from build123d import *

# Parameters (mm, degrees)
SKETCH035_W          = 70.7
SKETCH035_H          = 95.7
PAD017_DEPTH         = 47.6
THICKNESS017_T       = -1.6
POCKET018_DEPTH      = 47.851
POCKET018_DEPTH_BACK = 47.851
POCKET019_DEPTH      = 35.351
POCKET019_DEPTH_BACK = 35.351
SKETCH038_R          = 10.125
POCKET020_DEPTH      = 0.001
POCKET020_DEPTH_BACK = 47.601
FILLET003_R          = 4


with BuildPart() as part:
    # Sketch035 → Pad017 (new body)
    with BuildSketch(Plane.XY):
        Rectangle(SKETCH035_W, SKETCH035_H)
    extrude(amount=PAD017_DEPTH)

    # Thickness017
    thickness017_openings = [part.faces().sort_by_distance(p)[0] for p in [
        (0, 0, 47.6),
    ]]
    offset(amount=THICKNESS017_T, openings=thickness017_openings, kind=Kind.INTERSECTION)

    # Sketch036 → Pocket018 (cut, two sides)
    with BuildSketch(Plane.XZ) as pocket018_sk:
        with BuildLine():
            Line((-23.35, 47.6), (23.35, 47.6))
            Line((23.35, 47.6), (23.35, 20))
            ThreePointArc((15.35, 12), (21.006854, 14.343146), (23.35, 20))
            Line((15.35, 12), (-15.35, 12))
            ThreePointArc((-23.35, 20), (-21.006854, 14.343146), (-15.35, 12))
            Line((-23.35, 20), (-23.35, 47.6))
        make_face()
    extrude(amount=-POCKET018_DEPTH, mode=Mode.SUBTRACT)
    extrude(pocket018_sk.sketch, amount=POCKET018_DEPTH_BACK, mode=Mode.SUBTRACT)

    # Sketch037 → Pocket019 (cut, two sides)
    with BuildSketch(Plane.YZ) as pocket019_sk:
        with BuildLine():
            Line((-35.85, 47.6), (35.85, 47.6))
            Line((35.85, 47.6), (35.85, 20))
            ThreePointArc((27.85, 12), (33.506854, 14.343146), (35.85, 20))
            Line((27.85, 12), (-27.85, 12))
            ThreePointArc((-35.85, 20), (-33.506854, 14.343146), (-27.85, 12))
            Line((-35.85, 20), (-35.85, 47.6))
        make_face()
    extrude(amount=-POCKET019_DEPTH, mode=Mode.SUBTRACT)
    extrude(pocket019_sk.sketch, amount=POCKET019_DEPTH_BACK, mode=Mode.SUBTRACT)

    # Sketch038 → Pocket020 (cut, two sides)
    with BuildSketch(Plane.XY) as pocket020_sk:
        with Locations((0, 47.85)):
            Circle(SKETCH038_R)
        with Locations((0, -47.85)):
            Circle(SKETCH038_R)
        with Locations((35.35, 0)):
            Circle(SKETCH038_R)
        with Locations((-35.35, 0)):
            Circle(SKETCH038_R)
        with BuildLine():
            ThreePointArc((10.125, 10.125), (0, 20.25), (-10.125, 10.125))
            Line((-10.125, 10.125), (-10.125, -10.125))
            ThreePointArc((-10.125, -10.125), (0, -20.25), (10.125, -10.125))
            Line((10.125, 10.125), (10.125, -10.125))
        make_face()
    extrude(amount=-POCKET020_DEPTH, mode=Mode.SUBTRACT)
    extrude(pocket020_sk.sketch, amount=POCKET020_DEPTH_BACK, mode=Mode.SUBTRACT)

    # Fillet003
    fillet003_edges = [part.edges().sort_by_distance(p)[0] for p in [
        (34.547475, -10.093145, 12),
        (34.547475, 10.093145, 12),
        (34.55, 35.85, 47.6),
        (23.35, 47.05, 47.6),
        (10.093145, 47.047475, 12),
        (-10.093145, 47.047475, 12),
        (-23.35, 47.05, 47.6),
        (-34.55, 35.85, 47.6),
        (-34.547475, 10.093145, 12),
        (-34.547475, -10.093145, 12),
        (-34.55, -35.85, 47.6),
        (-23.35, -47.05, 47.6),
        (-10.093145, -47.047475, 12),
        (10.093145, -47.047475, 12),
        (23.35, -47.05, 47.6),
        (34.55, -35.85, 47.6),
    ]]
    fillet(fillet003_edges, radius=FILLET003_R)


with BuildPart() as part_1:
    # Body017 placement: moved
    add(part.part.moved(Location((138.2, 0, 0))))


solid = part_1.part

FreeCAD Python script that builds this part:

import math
import FreeCAD as App
import Part
import Sketcher
Q = App.Units.Quantity


def edges_at(feature, points):
    """Names of the edges that pass closest to the given points."""
    edges = feature.Shape.Edges
    near = lambda p: min(range(len(edges)), key=lambda i: edges[i].distToShape(Part.Vertex(*p))[0])
    return sorted({f"Edge{near(p) + 1}" for p in points})


def faces_at(feature, points):
    """Names of the faces that lie closest to the given points."""
    faces = feature.Shape.Faces
    near = lambda p: min(range(len(faces)), key=lambda i: faces[i].distToShape(Part.Vertex(*p))[0])
    return sorted({f"Face{near(p) + 1}" for p in points})


def add_polygon(sketch, points):
    """Adds a closed chain of lines whose ends are joined by coincident constraints."""
    first, n = sketch.GeometryCount, len(points)
    for a, b in zip(points, points[1:] + points[:1]):
        sketch.addGeometry(Part.LineSegment(App.Vector(*a, 0), App.Vector(*b, 0)), False)
    for i in range(n):
        sketch.addConstraint(Sketcher.Constraint("Coincident", first + i, 2, first + (i + 1) % n, 1))

doc = App.newDocument("Part")
body = doc.addObject("PartDesign::Body", "Body")

# Sketch on XY plane
sketch1 = body.newObject("Sketcher::SketchObject", "Sketch")
sketch1.AttachmentSupport = (doc.getObject("XY_Plane"), [""])
sketch1.MapMode = "FlatFace"
add_polygon(sketch1, [(-35, 48), (-35, -48), (35, -48), (35, 48)])  # lines 0-3
sketch1.addConstraint([
    Sketcher.Constraint("Vertical", 0),
    Sketcher.Constraint("Horizontal", 1),
    Sketcher.Constraint("Vertical", 2),
    Sketcher.Constraint("Horizontal", 3),
    Sketcher.Constraint("Symmetric", 0, 2, 2, 2, -1, 1),
    Sketcher.Constraint("DistanceX", 1, 1, 1, 2, Q("70.7 mm")),
    Sketcher.Constraint("DistanceY", 0, 2, 0, 1, Q("95.7 mm")),
])
pad1 = body.newObject("PartDesign::Pad", "Pad")
pad1.Profile = sketch1
pad1.Length = 47.6
doc.recompute()

thickness = body.newObject("PartDesign::Thickness", "Thickness")
thickness.Base = (pad1, faces_at(pad1, [(0, 0, 47.6)]))
thickness.Value = 1.6
thickness.Reversed = True
thickness.Join = "Intersection"

# Sketch on XZ plane
sketch2 = body.newObject("Sketcher::SketchObject", "Sketch001")
sketch2.AttachmentSupport = (doc.getObject("XZ_Plane"), [""])
sketch2.MapMode = "FlatFace"
sketch2.addGeometry([
    Part.LineSegment(App.Vector(23, 48, 0), App.Vector(-23, 48, 0)),  # 0
    Part.LineSegment(App.Vector(-23, 48, 0), App.Vector(-23, 20, 0)),  # 1
    Part.ArcOfCircle(Part.Circle(App.Vector(-15, 20, 0), App.Vector(0, 0, 1), 8), math.radians(-180), math.radians(-90)),  # 2
    Part.LineSegment(App.Vector(-15, 12, 0), App.Vector(15, 12, 0)),  # 3
    Part.ArcOfCircle(Part.Circle(App.Vector(15, 20, 0), App.Vector(0, 0, 1), 8), math.radians(-90), math.radians(0)),  # 4
    Part.LineSegment(App.Vector(23, 20, 0), App.Vector(23, 48, 0)),  # 5
], False)
sketch2.addConstraint([
    Sketcher.Constraint("Coincident", 0, 2, 1, 1),
    Sketcher.Constraint("Tangent", 1, 2, 2, 1),
    Sketcher.Constraint("Tangent", 2, 2, 3, 1),
    Sketcher.Constraint("Tangent", 3, 2, 4, 1),
    Sketcher.Constraint("Tangent", 4, 2, 5, 1),
    Sketcher.Constraint("Coincident", 5, 2, 0, 1),
    Sketcher.Constraint("Horizontal", 0),
    Sketcher.Constraint("Vertical", 1),
    Sketcher.Constraint("Horizontal", 3),
    Sketcher.Constraint("Vertical", 5),
    Sketcher.Constraint("Equal", 2, 4),
    Sketcher.Constraint("Radius", 2, Q("8.000001 mm")),
    Sketcher.Constraint("DistanceX", 0, 2, 0, 1, Q("46.7 mm")),
    Sketcher.Constraint("DistanceY", 1, 2, 1, 1, Q("27.6 mm")),
    Sketcher.Constraint("DistanceY", -1, 1, 2, 3, Q("20.000001 mm")),
    Sketcher.Constraint("DistanceX", 2, 3, -1, 1, Q("15.349999 mm")),
])
pocket1 = body.newObject("PartDesign::Pocket", "Pocket")
pocket1.Profile = sketch2
pocket1.Type = "ThroughAll"
pocket1.Midplane = True

# Sketch on YZ plane
sketch3 = body.newObject("Sketcher::SketchObject", "Sketch002")
sketch3.AttachmentSupport = (doc.getObject("YZ_Plane"), [""])
sketch3.MapMode = "FlatFace"
sketch3.addGeometry([
    Part.LineSegment(App.Vector(36, 48, 0), App.Vector(-36, 48, 0)),  # 0
    Part.LineSegment(App.Vector(-36, 48, 0), App.Vector(-36, 20, 0)),  # 1
    Part.ArcOfCircle(Part.Circle(App.Vector(-28, 20, 0), App.Vector(0, 0, 1), 8), math.radians(-180), math.radians(-90)),  # 2
    Part.LineSegment(App.Vector(-28, 12, 0), App.Vector(28, 12, 0)),  # 3
    Part.ArcOfCircle(Part.Circle(App.Vector(28, 20, 0), App.Vector(0, 0, 1), 8), math.radians(-90), math.radians(0)),  # 4
    Part.LineSegment(App.Vector(36, 20, 0), App.Vector(36, 48, 0)),  # 5
], False)
sketch3.addConstraint([
    Sketcher.Constraint("Coincident", 0, 2, 1, 1),
    Sketcher.Constraint("Tangent", 1, 2, 2, 1),
    Sketcher.Constraint("Tangent", 2, 2, 3, 1),
    Sketcher.Constraint("Tangent", 3, 2, 4, 1),
    Sketcher.Constraint("Tangent", 4, 2, 5, 1),
    Sketcher.Constraint("Coincident", 5, 2, 0, 1),
    Sketcher.Constraint("Horizontal", 0),
    Sketcher.Constraint("Vertical", 1),
    Sketcher.Constraint("Horizontal", 3),
    Sketcher.Constraint("Vertical", 5),
    Sketcher.Constraint("Equal", 2, 4),
    Sketcher.Constraint("Radius", 2, Q("8.000001 mm")),
    Sketcher.Constraint("DistanceX", 0, 2, 0, 1, Q("71.7 mm")),
    Sketcher.Constraint("DistanceY", 1, 2, 1, 1, Q("27.6 mm")),
    Sketcher.Constraint("DistanceY", -1, 1, 2, 3, Q("20.000001 mm")),
    Sketcher.Constraint("DistanceX", 2, 3, -1, 1, Q("27.849999 mm")),
])
pocket2 = body.newObject("PartDesign::Pocket", "Pocket001")
pocket2.Profile = sketch3
pocket2.Type = "ThroughAll"
pocket2.Midplane = True

# Sketch on XY plane
sketch4 = body.newObject("Sketcher::SketchObject", "Sketch003")
sketch4.AttachmentSupport = (doc.getObject("XY_Plane"), [""])
sketch4.MapMode = "FlatFace"
sketch4.addGeometry([
    Part.Circle(App.Vector(0, 48, 0), App.Vector(0, 0, 1), 10),  # 0
    Part.Circle(App.Vector(0, -48, 0), App.Vector(0, 0, 1), 10),  # 1
    Part.Circle(App.Vector(35, 0, 0), App.Vector(0, 0, 1), 10),  # 2
    Part.Circle(App.Vector(-35, 0, 0), App.Vector(0, 0, 1), 10),  # 3
    Part.ArcOfCircle(Part.Circle(App.Vector(0, 10, 0), App.Vector(0, 0, 1), 10), math.radians(0), math.radians(180)),  # 4
    Part.LineSegment(App.Vector(-10, 10, 0), App.Vector(-10, -10, 0)),  # 5
    Part.ArcOfCircle(Part.Circle(App.Vector(0, -10, 0), App.Vector(0, 0, 1), 10), math.radians(180), math.radians(360)),  # 6
    Part.LineSegment(App.Vector(10, -10, 0), App.Vector(10, 10, 0)),  # 7
], False)
sketch4.addConstraint([
    Sketcher.Constraint("Tangent", 4, 2, 5, 1),
    Sketcher.Constraint("Tangent", 5, 2, 6, 1),
    Sketcher.Constraint("Tangent", 6, 2, 7, 1),
    Sketcher.Constraint("Tangent", 7, 2, 4, 1),
    Sketcher.Constraint("Vertical", 5),
    Sketcher.Constraint("Vertical", 7),
    Sketcher.Constraint("Equal", 0, 1),
    Sketcher.Constraint("Equal", 1, 2),
    Sketcher.Constraint("Equal", 2, 3),
    Sketcher.Constraint("Equal", 3, 4),
    Sketcher.Constraint("Symmetric", 0, 3, 1, 3, -1, 1),
    Sketcher.Constraint("Symmetric", 2, 3, 3, 3, -1, 1),
    Sketcher.Constraint("Symmetric", 4, 3, 6, 3, -1, 1),
    Sketcher.Constraint("PointOnObject", 0, 3, -2),
    Sketcher.Constraint("PointOnObject", 2, 3, -1),
    Sketcher.Constraint("Diameter", 0, Q("20.25 mm")),
    Sketcher.Constraint("DistanceY", 5, 2, 5, 1, Q("20.25 mm")),
    Sketcher.Constraint("DistanceY", 1, 3, 0, 3, Q("95.7 mm")),
    Sketcher.Constraint("DistanceX", 3, 3, 2, 3, Q("70.7 mm")),
])
pocket3 = body.newObject("PartDesign::Pocket", "Pocket002")
pocket3.Profile = sketch4
pocket3.Type = "ThroughAll"
pocket3.Midplane = True
doc.recompute()

fillet = body.newObject("PartDesign::Fillet", "Fillet")
fillet.Base = (pocket3, edges_at(pocket3, [
    (34.547, -10.093, 12),
    (34.547, 10.093, 12),
    (34.55, 35.85, 47.6),
    (23.35, 47.05, 47.6),
    (10.093, 47.047, 12),
    (-10.093, 47.047, 12),
    (-23.35, 47.05, 47.6),
    (-34.55, 35.85, 47.6),
    (-34.547, 10.093, 12),
    (-34.547, -10.093, 12),
    (-34.55, -35.85, 47.6),
    (-23.35, -47.05, 47.6),
    (-10.093, -47.047, 12),
    (10.093, -47.047, 12),
    (23.35, -47.05, 47.6),
    (34.55, -35.85, 47.6),
]))
fillet.Radius = 4
body2 = doc.addObject("PartDesign::Body", "Body001")
doc.recompute()

body.Placement = App.Placement(App.Vector(138.2, 0, 0), App.Rotation(App.Vector(0, 0, 1), 0))
boolean = body2.newObject("PartDesign::Boolean", "Boolean")
boolean.Type = "Fuse"
boolean.addObjects([body])

doc.recompute()
